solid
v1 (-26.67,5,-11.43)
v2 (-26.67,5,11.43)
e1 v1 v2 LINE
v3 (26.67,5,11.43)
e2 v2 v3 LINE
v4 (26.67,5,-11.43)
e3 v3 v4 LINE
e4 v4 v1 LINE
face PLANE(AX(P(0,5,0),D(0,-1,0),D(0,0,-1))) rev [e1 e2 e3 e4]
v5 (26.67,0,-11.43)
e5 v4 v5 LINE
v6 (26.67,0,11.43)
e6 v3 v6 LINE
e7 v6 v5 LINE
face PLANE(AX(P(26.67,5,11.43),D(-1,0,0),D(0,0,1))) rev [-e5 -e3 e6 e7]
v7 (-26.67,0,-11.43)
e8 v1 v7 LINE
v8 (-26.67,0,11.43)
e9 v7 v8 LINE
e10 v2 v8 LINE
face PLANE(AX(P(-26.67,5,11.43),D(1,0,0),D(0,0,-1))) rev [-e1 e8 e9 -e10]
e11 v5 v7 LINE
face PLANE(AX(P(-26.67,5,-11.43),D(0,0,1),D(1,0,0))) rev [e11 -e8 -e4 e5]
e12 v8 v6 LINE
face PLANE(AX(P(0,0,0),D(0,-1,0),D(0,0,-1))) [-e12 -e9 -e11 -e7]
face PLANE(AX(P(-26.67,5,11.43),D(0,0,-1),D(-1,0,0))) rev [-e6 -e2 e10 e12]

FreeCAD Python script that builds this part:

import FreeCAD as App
import Part
import Sketcher

V = App.Vector
Q = App.Units.Quantity


def add_polygon(sketch, points):
    """Adds a closed chain of lines whose ends are joined by coincident constraints."""
    first, n = sketch.GeometryCount, len(points)
    for a, b in zip(points, points[1:] + points[:1]):
        sketch.addGeometry(Part.LineSegment(App.Vector(*a, 0), App.Vector(*b, 0)), False)
    for i in range(n):
        sketch.addConstraint(Sketcher.Constraint("Coincident", first + i, 2, first + (i + 1) % n, 1))

doc = App.newDocument("Part")
params = doc.addObject("Spreadsheet::Sheet", "Params")
for row, (alias, value) in enumerate([
    ("sketch1_width", "2.1 in"),
    ("sketch1_height", "0.9 in"),
    ("pad1_length", "5 mm"),
], start=1):
    params.set(f"A{row}", alias)
    params.set(f"B{row}", "=" + value)
    params.setAlias(f"B{row}", alias)

body = doc.addObject("PartDesign::Body", "Body")

# Sketch on XZ plane
sketch1 = doc.addObject("Sketcher::SketchObject", "Sketch")
body.addObject(sketch1)
sketch1.AttachmentSupport = (doc.XZ_Plane, [""])
sketch1.MapMode = "FlatFace"
add_polygon(sketch1, [(-27, -11), (-27, 11), (27, 11), (27, -11)])  # lines 0-3
sketch1.addConstraint([
    Sketcher.Constraint("Vertical", 0),
    Sketcher.Constraint("Horizontal", 1),
    Sketcher.Constraint("Vertical", 2),
    Sketcher.Constraint("Horizontal", 3),
    Sketcher.Constraint("Symmetric", 0, 2, 2, 2, -1, 1),
    Sketcher.Constraint("DistanceX", 1, 1, 1, 2, Q("2.1 in")),
    Sketcher.Constraint("DistanceY", 0, 1, 0, 2, Q("0.9 in")),
])
sketch1.setExpression("Constraints[9]", "Params.sketch1_width")
sketch1.setExpression("Constraints[10]", "Params.sketch1_height")
pad1 = doc.addObject("PartDesign::Pad", "Pad")
body.addObject(pad1)
pad1.Profile = sketch1
pad1.setExpression("Length", "Params.pad1_length")
pad1.Reversed = True

doc.recompute()
